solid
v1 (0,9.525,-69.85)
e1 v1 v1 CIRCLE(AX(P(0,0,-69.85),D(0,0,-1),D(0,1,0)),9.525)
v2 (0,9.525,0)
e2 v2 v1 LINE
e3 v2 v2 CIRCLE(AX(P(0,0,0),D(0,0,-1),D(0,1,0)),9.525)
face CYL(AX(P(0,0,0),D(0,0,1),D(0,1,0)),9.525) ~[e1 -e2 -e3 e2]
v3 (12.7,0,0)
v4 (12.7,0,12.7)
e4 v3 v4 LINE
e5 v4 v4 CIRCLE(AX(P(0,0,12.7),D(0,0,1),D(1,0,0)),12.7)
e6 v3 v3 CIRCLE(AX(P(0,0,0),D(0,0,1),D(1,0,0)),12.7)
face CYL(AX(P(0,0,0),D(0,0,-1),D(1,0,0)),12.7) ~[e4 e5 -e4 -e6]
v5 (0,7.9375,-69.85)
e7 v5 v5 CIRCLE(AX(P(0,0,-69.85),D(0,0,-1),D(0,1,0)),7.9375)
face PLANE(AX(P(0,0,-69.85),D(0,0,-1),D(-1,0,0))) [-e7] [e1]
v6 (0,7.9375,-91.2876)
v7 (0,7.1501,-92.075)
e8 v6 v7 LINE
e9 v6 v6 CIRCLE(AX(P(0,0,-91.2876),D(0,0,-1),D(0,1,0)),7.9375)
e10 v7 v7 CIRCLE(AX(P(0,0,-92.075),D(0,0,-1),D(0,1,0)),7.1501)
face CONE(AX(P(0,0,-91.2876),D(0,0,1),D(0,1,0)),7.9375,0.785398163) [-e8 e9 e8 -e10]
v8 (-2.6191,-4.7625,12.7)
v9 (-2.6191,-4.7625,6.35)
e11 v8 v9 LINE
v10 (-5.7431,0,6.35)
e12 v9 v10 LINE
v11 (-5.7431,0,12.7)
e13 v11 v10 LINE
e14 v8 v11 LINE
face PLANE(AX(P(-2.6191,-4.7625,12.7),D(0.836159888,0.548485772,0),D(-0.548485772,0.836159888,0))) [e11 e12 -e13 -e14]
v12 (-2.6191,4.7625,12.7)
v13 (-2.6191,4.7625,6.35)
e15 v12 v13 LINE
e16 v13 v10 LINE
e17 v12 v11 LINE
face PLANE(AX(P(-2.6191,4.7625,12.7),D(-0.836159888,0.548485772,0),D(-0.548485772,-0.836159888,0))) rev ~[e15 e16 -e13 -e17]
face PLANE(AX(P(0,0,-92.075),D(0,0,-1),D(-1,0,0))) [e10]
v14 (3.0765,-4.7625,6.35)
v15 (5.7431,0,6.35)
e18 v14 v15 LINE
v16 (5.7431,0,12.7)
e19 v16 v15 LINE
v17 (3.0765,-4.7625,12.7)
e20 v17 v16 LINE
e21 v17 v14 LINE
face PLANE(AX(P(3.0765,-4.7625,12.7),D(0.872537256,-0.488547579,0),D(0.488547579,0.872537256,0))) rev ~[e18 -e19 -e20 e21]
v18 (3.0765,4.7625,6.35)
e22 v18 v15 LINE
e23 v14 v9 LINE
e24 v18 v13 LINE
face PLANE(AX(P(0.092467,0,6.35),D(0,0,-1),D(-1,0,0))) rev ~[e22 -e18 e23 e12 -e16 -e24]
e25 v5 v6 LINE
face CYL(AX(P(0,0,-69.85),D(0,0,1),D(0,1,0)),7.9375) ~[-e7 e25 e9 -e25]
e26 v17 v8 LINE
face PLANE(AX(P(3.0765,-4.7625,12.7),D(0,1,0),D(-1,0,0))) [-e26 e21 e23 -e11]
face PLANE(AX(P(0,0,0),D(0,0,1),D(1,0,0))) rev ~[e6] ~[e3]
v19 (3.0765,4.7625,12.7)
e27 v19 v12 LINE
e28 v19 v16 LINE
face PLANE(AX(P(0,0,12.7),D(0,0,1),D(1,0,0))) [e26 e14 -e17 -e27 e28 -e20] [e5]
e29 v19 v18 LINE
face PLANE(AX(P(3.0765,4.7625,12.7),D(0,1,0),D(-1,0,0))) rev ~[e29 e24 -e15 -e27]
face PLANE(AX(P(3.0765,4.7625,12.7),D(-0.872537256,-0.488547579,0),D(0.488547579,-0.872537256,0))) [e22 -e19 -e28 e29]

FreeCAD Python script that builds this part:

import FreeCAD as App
import Part
import Sketcher
from FreeCAD import Vector
Q = App.Units.Quantity


def edges_at(feature, points):
    """Names of the edges that pass closest to the given points."""
    edges = feature.Shape.Edges
    near = lambda p: min(range(len(edges)), key=lambda i: edges[i].distToShape(Part.Vertex(*p))[0])
    return sorted({f"Edge{near(p) + 1}" for p in points})

doc = App.newDocument("Part")
body = doc.addObject("PartDesign::Body", "Body")

sketch1 = doc.addObject("Sketcher::SketchObject", "Sketch")
body.addObject(sketch1)
sketch1.AttachmentSupport = (doc.XY_Plane, [""])
sketch1.MapMode = "FlatFace"
sketch1.addGeometry(Part.Circle(Vector(0, 0, 0), Vector(0, 0, 1), 13), False)
sketch1.addConstraint([
    Sketcher.Constraint("Coincident", 0, 3, -1, 1),
    Sketcher.Constraint("Diameter", 0, Q("1 in")),
])
pad1 = doc.addObject("PartDesign::Pad", "Pad")
body.addObject(pad1)
pad1.Profile = sketch1
pad1.Length = Q("0.5 in")

sketch2 = doc.addObject("Sketcher::SketchObject", "Sketch001")
body.addObject(sketch2)
sketch2.AttachmentSupport = (doc.XY_Plane, [""])
sketch2.MapMode = "FlatFace"
sketch2.addGeometry(Part.Circle(Vector(0, 0, 0), Vector(0, 0, 1), 10), False)
sketch2.addConstraint([
    Sketcher.Constraint("Coincident", 0, 3, -1, 1),
    Sketcher.Constraint("Diameter", 0, Q("0.75 in")),
])
pad2 = doc.addObject("PartDesign::Pad", "Pad001")
body.addObject(pad2)
pad2.Profile = sketch2
pad2.Length = Q("2.75 in")
pad2.Reversed = True

sketch3 = doc.addObject("Sketcher::SketchObject", "Sketch002")
body.addObject(sketch3)
sketch3.AttachmentSupport = (doc.XY_Plane, [""])
sketch3.MapMode = "FlatFace"
sketch3.AttachmentOffset = App.Placement(Vector(0, 0, -2.75 * 25.4), App.Rotation())
sketch3.addGeometry(Part.Circle(Vector(0, 0, 0), Vector(0, 0, 1), 8), False)
sketch3.addConstraint([
    Sketcher.Constraint("Coincident", 0, 3, -1, 1),
    Sketcher.Constraint("Diameter", 0, Q("0.625 in")),
])
pad3 = doc.addObject("PartDesign::Pad", "Pad002")
body.addObject(pad3)
pad3.Profile = sketch3
pad3.Length = Q("0.875 in")
pad3.Reversed = True

sketch4 = doc.addObject("Sketcher::SketchObject", "Sketch003")
body.addObject(sketch4)
sketch4.AttachmentSupport = (doc.XY_Plane, [""])
sketch4.MapMode = "FlatFace"
sketch4.AttachmentOffset = App.Placement(Vector(0, 0, 0.5 * 25.4), App.Rotation())
sketch4.addGeometry([
    Part.LineSegment(Vector(-6, 0, 0), Vector(-3, -5, 0)),
    Part.LineSegment(Vector(-3, -5, 0), Vector(3, -5, 0)),
    Part.LineSegment(Vector(3, -5, 0), Vector(6, 0, 0)),
    Part.LineSegment(Vector(6, 0, 0), Vector(3, 5, 0)),
    Part.LineSegment(Vector(3, 5, 0), Vector(-3, 5, 0)),
    Part.LineSegment(Vector(-3, 5, 0), Vector(-6, 0, 0)),
], False)
sketch4.addConstraint([
    Sketcher.Constraint("Coincident", 0, 2, 1, 1),
    Sketcher.Constraint("Coincident", 1, 2, 2, 1),
    Sketcher.Constraint("Coincident", 2, 2, 3, 1),
    Sketcher.Constraint("Coincident", 3, 2, 4, 1),
    Sketcher.Constraint("Coincident", 4, 2, 5, 1),
    Sketcher.Constraint("Coincident", 5, 2, 0, 1),
    Sketcher.Constraint("Horizontal", 1),
    Sketcher.Constraint("Horizontal", 4),
    Sketcher.Constraint("Symmetric", 2, 2, 5, 2, -1, 1),
    Sketcher.Constraint("Symmetric", 1, 2, 3, 2, -1),
    Sketcher.Constraint("PointOnObject", 2, 2, -1),
    Sketcher.Constraint("Vertical", 0, 2, 4, 2),
    Sketcher.Constraint("DistanceY", 0, 2, -1, 1, Q("0.1875 in")),
    Sketcher.Constraint("DistanceX", 5, 2, 0, 2, Q("0.123 in")),
    Sketcher.Constraint("Distance", 2, Q("0.2149 in")),
    Sketcher.Constraint("DistanceX", 1, 1, 1, 2, Q("5.6956 mm")),
])
pocket1 = doc.addObject("PartDesign::Pocket", "Pocket")
body.addObject(pocket1)
pocket1.Profile = sketch4
pocket1.Length = Q("0.25 in")
doc.recompute()

chamfer = doc.addObject("PartDesign::Chamfer", "Chamfer")
body.addObject(chamfer)
chamfer.Base = (pocket1, edges_at(pocket1, [(0, -7.938, -92.075)]))
chamfer.Size = Q("0.031 in")

doc.recompute()
